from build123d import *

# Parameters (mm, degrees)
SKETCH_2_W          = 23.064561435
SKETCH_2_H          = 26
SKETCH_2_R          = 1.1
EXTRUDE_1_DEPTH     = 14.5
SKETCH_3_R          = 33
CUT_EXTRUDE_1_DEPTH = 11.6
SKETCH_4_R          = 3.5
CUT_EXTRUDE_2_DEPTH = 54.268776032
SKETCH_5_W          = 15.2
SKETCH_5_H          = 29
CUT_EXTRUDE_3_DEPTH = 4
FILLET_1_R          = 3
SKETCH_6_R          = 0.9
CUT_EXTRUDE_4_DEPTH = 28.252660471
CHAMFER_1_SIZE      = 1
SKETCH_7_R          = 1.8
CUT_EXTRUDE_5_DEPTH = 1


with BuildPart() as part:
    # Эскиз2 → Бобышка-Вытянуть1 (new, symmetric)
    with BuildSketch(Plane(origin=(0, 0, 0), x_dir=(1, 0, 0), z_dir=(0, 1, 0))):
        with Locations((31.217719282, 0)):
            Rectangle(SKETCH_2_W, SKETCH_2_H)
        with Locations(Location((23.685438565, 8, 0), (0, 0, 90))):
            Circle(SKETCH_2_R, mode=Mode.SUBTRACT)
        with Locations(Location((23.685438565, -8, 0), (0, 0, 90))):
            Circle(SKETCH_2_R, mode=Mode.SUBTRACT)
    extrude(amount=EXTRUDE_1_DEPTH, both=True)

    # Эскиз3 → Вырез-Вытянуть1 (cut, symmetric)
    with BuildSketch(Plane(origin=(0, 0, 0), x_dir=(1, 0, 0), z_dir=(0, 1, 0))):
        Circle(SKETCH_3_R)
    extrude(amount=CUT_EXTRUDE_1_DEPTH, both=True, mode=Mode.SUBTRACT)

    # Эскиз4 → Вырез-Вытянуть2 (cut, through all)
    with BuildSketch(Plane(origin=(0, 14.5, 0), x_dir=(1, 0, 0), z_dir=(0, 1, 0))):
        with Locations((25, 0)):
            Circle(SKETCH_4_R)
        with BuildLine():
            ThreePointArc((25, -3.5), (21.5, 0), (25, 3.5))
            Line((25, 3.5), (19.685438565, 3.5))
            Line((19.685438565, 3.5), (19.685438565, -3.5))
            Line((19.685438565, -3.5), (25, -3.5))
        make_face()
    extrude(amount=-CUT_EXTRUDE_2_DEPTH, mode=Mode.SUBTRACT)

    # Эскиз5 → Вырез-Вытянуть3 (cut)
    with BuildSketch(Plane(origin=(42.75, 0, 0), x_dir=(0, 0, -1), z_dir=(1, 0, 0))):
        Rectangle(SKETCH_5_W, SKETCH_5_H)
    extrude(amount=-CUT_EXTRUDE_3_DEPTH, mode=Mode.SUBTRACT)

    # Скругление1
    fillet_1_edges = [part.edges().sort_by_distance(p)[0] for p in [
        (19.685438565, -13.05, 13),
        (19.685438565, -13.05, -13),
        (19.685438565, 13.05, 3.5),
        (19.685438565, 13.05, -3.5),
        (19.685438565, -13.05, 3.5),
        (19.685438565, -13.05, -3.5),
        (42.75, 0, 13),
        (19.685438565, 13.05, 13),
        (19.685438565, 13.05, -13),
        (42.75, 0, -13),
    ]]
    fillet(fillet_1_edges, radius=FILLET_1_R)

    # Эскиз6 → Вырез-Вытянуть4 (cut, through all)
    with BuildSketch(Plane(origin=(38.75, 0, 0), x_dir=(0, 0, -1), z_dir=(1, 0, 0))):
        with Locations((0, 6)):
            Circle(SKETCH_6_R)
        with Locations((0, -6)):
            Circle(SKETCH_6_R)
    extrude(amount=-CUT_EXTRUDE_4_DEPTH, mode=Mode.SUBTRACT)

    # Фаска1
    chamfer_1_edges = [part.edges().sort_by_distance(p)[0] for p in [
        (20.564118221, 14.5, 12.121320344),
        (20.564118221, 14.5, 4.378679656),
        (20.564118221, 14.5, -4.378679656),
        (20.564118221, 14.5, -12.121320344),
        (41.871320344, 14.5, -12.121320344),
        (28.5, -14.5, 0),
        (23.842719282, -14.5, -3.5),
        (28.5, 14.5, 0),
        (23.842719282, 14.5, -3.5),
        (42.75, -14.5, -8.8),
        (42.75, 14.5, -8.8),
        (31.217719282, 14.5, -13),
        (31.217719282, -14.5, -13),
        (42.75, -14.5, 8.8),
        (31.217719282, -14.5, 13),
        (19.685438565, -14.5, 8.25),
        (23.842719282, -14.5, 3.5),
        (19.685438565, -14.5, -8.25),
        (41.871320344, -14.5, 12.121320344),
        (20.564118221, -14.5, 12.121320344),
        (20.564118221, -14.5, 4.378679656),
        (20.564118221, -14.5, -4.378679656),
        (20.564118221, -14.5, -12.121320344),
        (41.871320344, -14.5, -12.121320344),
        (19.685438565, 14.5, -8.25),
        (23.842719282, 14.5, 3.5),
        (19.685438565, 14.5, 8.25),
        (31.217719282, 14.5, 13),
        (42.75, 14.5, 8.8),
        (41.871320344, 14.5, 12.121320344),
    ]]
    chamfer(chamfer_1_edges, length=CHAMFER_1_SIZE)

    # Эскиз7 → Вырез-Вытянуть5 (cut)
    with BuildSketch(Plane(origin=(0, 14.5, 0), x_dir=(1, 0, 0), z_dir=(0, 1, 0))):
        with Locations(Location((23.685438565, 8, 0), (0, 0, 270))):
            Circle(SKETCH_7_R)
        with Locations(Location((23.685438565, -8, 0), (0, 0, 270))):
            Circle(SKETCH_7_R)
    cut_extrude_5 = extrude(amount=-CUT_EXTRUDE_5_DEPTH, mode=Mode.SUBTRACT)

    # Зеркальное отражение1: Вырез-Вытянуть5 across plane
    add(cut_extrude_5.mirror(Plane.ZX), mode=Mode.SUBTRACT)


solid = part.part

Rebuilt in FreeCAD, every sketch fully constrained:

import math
import FreeCAD as App
import Part
import Sketcher


def edges_at(feature, points):
    """Names of the edges that pass closest to the given points."""
    edges = feature.Shape.Edges
    near = lambda p: min(range(len(edges)), key=lambda i: edges[i].distToShape(Part.Vertex(*p))[0])
    return sorted({f"Edge{near(p) + 1}" for p in points})

doc = App.newDocument("Part")
params = doc.addObject("Spreadsheet::Sheet", "Params")
for row, (alias, value) in enumerate([
    ("sketch1_diameter", "2.2 mm"),
    ("sketch1_height", "26 mm"),
    ("pad1_length", "29 mm"),
    ("sketch2_diameter", "66 mm"),
    ("pocket1_length", "23.2 mm"),
    ("sketch3_radius", "3.5 mm"),
    ("sketch4_width", "29 mm"),
    ("sketch4_height", "15.2 mm"),
    ("pocket3_length", "4 mm"),
    ("fillet_radius", "3 mm"),
    ("sketch5_diameter", "1.8 mm"),
    ("chamfer_size", "1 mm"),
    ("sketch6_diameter", "3.6 mm"),
    ("pocket5_length", "1 mm"),
], start=1):
    params.set(f"A{row}", alias)
    params.set(f"B{row}", "=" + value)
    params.setAlias(f"B{row}", alias)

body = doc.addObject("PartDesign::Body", "Body")

# Sketch on XZ plane
sketch1 = body.newObject("Sketcher::SketchObject", "Sketch")
sketch1.AttachmentSupport = (doc.getObject("XZ_Plane"), [""])
sketch1.MapMode = "FlatFace"
sketch1.addGeometry(Part.LineSegment(App.Vector(19.685439, -13, 0), App.Vector(19.685439, 13, 0)), False)
sketch1.addGeometry(Part.LineSegment(App.Vector(19.685439, 13, 0), App.Vector(42.75, 13, 0)), False)
sketch1.addGeometry(Part.LineSegment(App.Vector(42.75, 13, 0), App.Vector(42.75, -13, 0)), False)
sketch1.addGeometry(Part.LineSegment(App.Vector(42.75, -13, 0), App.Vector(19.685439, -13, 0)), False)
sketch1.addGeometry(Part.Circle(App.Vector(23.685439, 8, 0), App.Vector(0, 0, 1), 1.1), False)
sketch1.addGeometry(Part.Circle(App.Vector(23.685439, -8, 0), App.Vector(0, 0, 1), 1.1), False)
sketch1.addConstraint(Sketcher.Constraint("Coincident", 0, 2, 1, 1))
sketch1.addConstraint(Sketcher.Constraint("Coincident", 1, 2, 2, 1))
sketch1.addConstraint(Sketcher.Constraint("Coincident", 2, 2, 3, 1))
sketch1.addConstraint(Sketcher.Constraint("Coincident", 3, 2, 0, 1))
sketch1.addConstraint(Sketcher.Constraint("Vertical", 0))
sketch1.addConstraint(Sketcher.Constraint("Horizontal", 1))
sketch1.addConstraint(Sketcher.Constraint("Vertical", 2))
sketch1.addConstraint(Sketcher.Constraint("Horizontal", 3))
sketch1.addConstraint(Sketcher.Constraint("Equal", 4, 5))
sketch1.addConstraint(Sketcher.Constraint("Symmetric", 4, 3, 5, 3, -1))
sketch1.addConstraint(Sketcher.Constraint("Diameter", 4, 2.2))
sketch1.addConstraint(Sketcher.Constraint("DistanceY", 0, 1, 0, 2, 26.0))
sketch1.addConstraint(Sketcher.Constraint("DistanceY", -1, 1, 4, 3, 8.0))
sketch1.addConstraint(Sketcher.Constraint("DistanceY", -1, 1, 0, 2, 13.0))
sketch1.addConstraint(Sketcher.Constraint("DistanceX", 0, 2, 4, 3, 4.0))
sketch1.addConstraint(Sketcher.Constraint("DistanceX", -1, 1, 1, 2, 42.75))
sketch1.addConstraint(Sketcher.Constraint("DistanceX", 1, 1, 1, 2, 23.064561))
sketch1.setExpression("Constraints[10]", "Params.sketch1_diameter")
sketch1.setExpression("Constraints[11]", "Params.sketch1_height")
pad1 = body.newObject("PartDesign::Pad", "Pad")
pad1.Profile = sketch1
pad1.setExpression("Length", "Params.pad1_length")
pad1.Midplane = True

# Sketch on XZ plane
sketch2 = body.newObject("Sketcher::SketchObject", "Sketch001")
sketch2.AttachmentSupport = (doc.getObject("XZ_Plane"), [""])
sketch2.MapMode = "FlatFace"
sketch2.addGeometry(Part.Circle(App.Vector(0, 0, 0), App.Vector(0, 0, 1), 33), False)
sketch2.addConstraint(Sketcher.Constraint("Coincident", 0, 3, -1, 1))
sketch2.addConstraint(Sketcher.Constraint("Diameter", 0, 66.0))
sketch2.setExpression("Constraints[1]", "Params.sketch2_diameter")
pocket1 = body.newObject("PartDesign::Pocket", "Pocket")
pocket1.Profile = sketch2
pocket1.setExpression("Length", "Params.pocket1_length")
pocket1.Midplane = True

# Sketch on XZ plane
sketch3 = body.newObject("Sketcher::SketchObject", "Sketch002")
sketch3.AttachmentSupport = (doc.getObject("XZ_Plane"), [""])
sketch3.MapMode = "FlatFace"
sketch3.AttachmentOffset = App.Placement(App.Vector(0, 0, -14.5), App.Rotation())
sketch3.addGeometry(Part.LineSegment(App.Vector(25, -3.5, 0), App.Vector(19.685439, -3.5, 0)), False)
sketch3.addGeometry(Part.LineSegment(App.Vector(19.685439, -3.5, 0), App.Vector(19.685439, 3.5, 0)), False)
sketch3.addGeometry(Part.LineSegment(App.Vector(19.685439, 3.5, 0), App.Vector(25, 3.5, 0)), False)
sketch3.addGeometry(Part.ArcOfCircle(Part.Circle(App.Vector(25, 0, 0), App.Vector(0, 0, 1), 3.5), math.radians(-90), math.radians(90)), False)
sketch3.addConstraint(Sketcher.Constraint("Coincident", 0, 2, 1, 1))
sketch3.addConstraint(Sketcher.Constraint("Coincident", 1, 2, 2, 1))
sketch3.addConstraint(Sketcher.Constraint("Tangent", 2, 2, 3, 2))
sketch3.addConstraint(Sketcher.Constraint("Tangent", 3, 1, 0, 1))
sketch3.addConstraint(Sketcher.Constraint("Horizontal", 0))
sketch3.addConstraint(Sketcher.Constraint("Vertical", 1))
sketch3.addConstraint(Sketcher.Constraint("Horizontal", 2))
sketch3.addConstraint(Sketcher.Constraint("PointOnObject", 3, 3, -1))
sketch3.addConstraint(Sketcher.Constraint("Radius", 3, 3.5))
sketch3.addConstraint(Sketcher.Constraint("DistanceX", -1, 1, 3, 3, 25.0))
sketch3.addConstraint(Sketcher.Constraint("DistanceX", 0, 2, 0, 1, 5.314561))
sketch3.setExpression("Constraints[8]", "Params.sketch3_radius")
pocket2 = body.newObject("PartDesign::Pocket", "Pocket001")
pocket2.Profile = sketch3
pocket2.Type = "ThroughAll"
pocket2.Reversed = True

# Sketch on YZ plane
sketch4 = body.newObject("Sketcher::SketchObject", "Sketch003")
sketch4.AttachmentSupport = (doc.getObject("YZ_Plane"), [""])
sketch4.MapMode = "FlatFace"
sketch4.AttachmentOffset = App.Placement(App.Vector(0, 0, 42.75), App.Rotation())
sketch4.addGeometry(Part.LineSegment(App.Vector(14.5, 7.6, 0), App.Vector(-14.5, 7.6, 0)), False)
sketch4.addGeometry(Part.LineSegment(App.Vector(-14.5, 7.6, 0), App.Vector(-14.5, -7.6, 0)), False)
sketch4.addGeometry(Part.LineSegment(App.Vector(-14.5, -7.6, 0), App.Vector(14.5, -7.6, 0)), False)
sketch4.addGeometry(Part.LineSegment(App.Vector(14.5, -7.6, 0), App.Vector(14.5, 7.6, 0)), False)
sketch4.addConstraint(Sketcher.Constraint("Coincident", 0, 2, 1, 1))
sketch4.addConstraint(Sketcher.Constraint("Coincident", 1, 2, 2, 1))
sketch4.addConstraint(Sketcher.Constraint("Coincident", 2, 2, 3, 1))
sketch4.addConstraint(Sketcher.Constraint("Coincident", 3, 2, 0, 1))
sketch4.addConstraint(Sketcher.Constraint("Horizontal", 0))
sketch4.addConstraint(Sketcher.Constraint("Vertical", 1))
sketch4.addConstraint(Sketcher.Constraint("Horizontal", 2))
sketch4.addConstraint(Sketcher.Constraint("Vertical", 3))
sketch4.addConstraint(Sketcher.Constraint("Symmetric", 0, 2, 2, 2, -1, 1))
sketch4.addConstraint(Sketcher.Constraint("DistanceX", 0, 2, 0, 1, 29.0))
sketch4.addConstraint(Sketcher.Constraint("DistanceY", 1, 2, 1, 1, 15.2))
sketch4.setExpression("Constraints[9]", "Params.sketch4_width")
sketch4.setExpression("Constraints[10]", "Params.sketch4_height")
pocket3 = body.newObject("PartDesign::Pocket", "Pocket002")
pocket3.Profile = sketch4
pocket3.setExpression("Length", "Params.pocket3_length")
doc.recompute()

fillet = body.newObject("PartDesign::Fillet", "Fillet")
fillet.Base = (pocket3, edges_at(pocket3, [
    (19.685, -13.05, 13),
    (19.685, -13.05, -13),
    (19.685, 13.05, 3.5),
    (19.685, 13.05, -3.5),
    (19.685, -13.05, 3.5),
    (19.685, -13.05, -3.5),
    (42.75, 0, 13),
    (19.685, 13.05, 13),
    (19.685, 13.05, -13),
    (42.75, 0, -13),
]))
fillet.setExpression("Radius", "Params.fillet_radius")

# Sketch on YZ plane
sketch5 = body.newObject("Sketcher::SketchObject", "Sketch004")
sketch5.AttachmentSupport = (doc.getObject("YZ_Plane"), [""])
sketch5.MapMode = "FlatFace"
sketch5.AttachmentOffset = App.Placement(App.Vector(0, 0, 38.75), App.Rotation())
sketch5.addGeometry(Part.Circle(App.Vector(6, 0, 0), App.Vector(0, 0, 1), 0.9), False)
sketch5.addGeometry(Part.Circle(App.Vector(-6, 0, 0), App.Vector(0, 0, 1), 0.9), False)
sketch5.addConstraint(Sketcher.Constraint("Equal", 0, 1))
sketch5.addConstraint(Sketcher.Constraint("Symmetric", 0, 3, 1, 3, -1, 1))
sketch5.addConstraint(Sketcher.Constraint("PointOnObject", 0, 3, -1))
sketch5.addConstraint(Sketcher.Constraint("Diameter", 0, 1.8))
sketch5.addConstraint(Sketcher.Constraint("DistanceX", -1, 1, 0, 3, 6.0))
sketch5.setExpression("Constraints[3]", "Params.sketch5_diameter")
pocket4 = body.newObject("PartDesign::Pocket", "Pocket003")
pocket4.Profile = sketch5
pocket4.Type = "ThroughAll"
doc.recompute()

chamfer = body.newObject("PartDesign::Chamfer", "Chamfer")
chamfer.Base = (pocket4, edges_at(pocket4, [
    (20.564, 14.5, 12.121),
    (20.564, 14.5, 4.379),
    (20.564, 14.5, -4.379),
    (20.564, 14.5, -12.121),
    (41.871, 14.5, -12.121),
    (28.5, -14.5, 0),
    (23.843, -14.5, -3.5),
    (28.5, 14.5, 0),
    (23.843, 14.5, -3.5),
    (42.75, -14.5, -8.8),
    (42.75, 14.5, -8.8),
    (31.218, 14.5, -13),
    (31.218, -14.5, -13),
    (42.75, -14.5, 8.8),
    (31.218, -14.5, 13),
    (19.685, -14.5, 8.25),
    (23.843, -14.5, 3.5),
    (19.685, -14.5, -8.25),
    (41.871, -14.5, 12.121),
    (20.564, -14.5, 12.121),
    (20.564, -14.5, 4.379),
    (20.564, -14.5, -4.379),
    (20.564, -14.5, -12.121),
    (41.871, -14.5, -12.121),
    (19.685, 14.5, -8.25),
    (23.843, 14.5, 3.5),
    (19.685, 14.5, 8.25),
    (31.218, 14.5, 13),
    (42.75, 14.5, 8.8),
    (41.871, 14.5, 12.121),
]))
chamfer.setExpression("Size", "Params.chamfer_size")

# Sketch on XZ plane
sketch6 = body.newObject("Sketcher::SketchObject", "Sketch005")
sketch6.AttachmentSupport = (doc.getObject("XZ_Plane"), [""])
sketch6.MapMode = "FlatFace"
sketch6.AttachmentOffset = App.Placement(App.Vector(0, 0, -14.5), App.Rotation())
sketch6.addGeometry(Part.Circle(App.Vector(23.685439, -8, 0), App.Vector(0, 0, 1), 1.8), False)
sketch6.addGeometry(Part.Circle(App.Vector(23.685439, 8, 0), App.Vector(0, 0, 1), 1.8), False)
sketch6.addConstraint(Sketcher.Constraint("Equal", 0, 1))
sketch6.addConstraint(Sketcher.Constraint("Symmetric", 0, 3, 1, 3, -1))
sketch6.addConstraint(Sketcher.Constraint("Diameter", 0, 3.6))
sketch6.addConstraint(Sketcher.Constraint("DistanceY", 0, 3, -1, 1, 8.0))
sketch6.addConstraint(Sketcher.Constraint("DistanceX", -1, 1, 0, 3, 23.685439))
sketch6.setExpression("Constraints[2]", "Params.sketch6_diameter")
pocket5 = body.newObject("PartDesign::Pocket", "Pocket004")
pocket5.Profile = sketch6
pocket5.setExpression("Length", "Params.pocket5_length")
pocket5.Reversed = True
doc.recompute()

mirrored = body.newObject("PartDesign::Mirrored", "Mirrored")
mirrored.Originals = [pocket5]
mirrored.MirrorPlane = (doc.getObject("XZ_Plane"), [""])
body.Tip = mirrored

doc.recompute()
